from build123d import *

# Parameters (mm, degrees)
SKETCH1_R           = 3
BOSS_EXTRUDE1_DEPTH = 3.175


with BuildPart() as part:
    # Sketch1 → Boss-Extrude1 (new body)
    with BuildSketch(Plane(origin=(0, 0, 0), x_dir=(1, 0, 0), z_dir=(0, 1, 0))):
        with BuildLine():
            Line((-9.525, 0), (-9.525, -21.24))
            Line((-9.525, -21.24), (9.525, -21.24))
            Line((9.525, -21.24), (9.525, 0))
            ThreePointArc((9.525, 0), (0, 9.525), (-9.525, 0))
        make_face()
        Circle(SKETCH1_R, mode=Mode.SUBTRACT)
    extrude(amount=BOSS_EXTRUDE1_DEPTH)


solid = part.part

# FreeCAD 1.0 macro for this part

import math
import FreeCAD as App
import Part
import Sketcher
from FreeCAD import Vector
Q = App.Units.Quantity

doc = App.newDocument("Part")
params = doc.addObject("Spreadsheet::Sheet", "Params")
for row, (alias, value) in enumerate([
    ("sketch1_radius", "0.375 in"),
    ("pad1_length", "0.125 in"),
], start=1):
    params.set(f"A{row}", alias)
    params.set(f"B{row}", "=" + value)
    params.setAlias(f"B{row}", alias)

body = doc.addObject("PartDesign::Body", "Body")

sketch1 = body.newObject("Sketcher::SketchObject", "Sketch")
sketch1.AttachmentSupport = (doc.getObject("XZ_Plane"), [""])
sketch1.MapMode = "FlatFace"
sketch1.addGeometry([
    Part.LineSegment(Vector(-9.525, 0, 0), Vector(-9.525, 21.24, 0)),
    Part.LineSegment(Vector(-9.525, 21.24, 0), Vector(9.525, 21.24, 0)),
    Part.LineSegment(Vector(9.525, 21.24, 0), Vector(9.525, 0, 0)),
    Part.ArcOfCircle(Part.Circle(Vector(0, 0, 0), Vector(0, 0, 1), 9.525), math.radians(180), math.radians(360)),
    Part.Circle(Vector(0, 0, 0), Vector(0, 0, 1), 3),
], False)
sketch1.addConstraint([
    Sketcher.Constraint("Coincident", 0, 2, 1, 1),
    Sketcher.Constraint("Coincident", 1, 2, 2, 1),
    Sketcher.Constraint("Tangent", 2, 2, 3, 2),
    Sketcher.Constraint("Tangent", 3, 1, 0, 1),
    Sketcher.Constraint("Vertical", 0),
    Sketcher.Constraint("Horizontal", 1),
    Sketcher.Constraint("Vertical", 2),
    Sketcher.Constraint("Coincident", 3, 3, -1, 1),
    Sketcher.Constraint("Coincident", 4, 3, -1, 1),
    Sketcher.Constraint("Radius", 3, Q("0.375 in")),
    Sketcher.Constraint("Diameter", 4, Q("6 mm")),
    Sketcher.Constraint("DistanceY", 0, 1, 0, 2, Q("21.24 mm")),
])
sketch1.setExpression("Constraints[9]", "Params.sketch1_radius")
pad1 = body.newObject("PartDesign::Pad", "Pad")
pad1.Profile = sketch1
pad1.setExpression("Length", "Params.pad1_length")
pad1.Reversed = True

doc.recompute()
